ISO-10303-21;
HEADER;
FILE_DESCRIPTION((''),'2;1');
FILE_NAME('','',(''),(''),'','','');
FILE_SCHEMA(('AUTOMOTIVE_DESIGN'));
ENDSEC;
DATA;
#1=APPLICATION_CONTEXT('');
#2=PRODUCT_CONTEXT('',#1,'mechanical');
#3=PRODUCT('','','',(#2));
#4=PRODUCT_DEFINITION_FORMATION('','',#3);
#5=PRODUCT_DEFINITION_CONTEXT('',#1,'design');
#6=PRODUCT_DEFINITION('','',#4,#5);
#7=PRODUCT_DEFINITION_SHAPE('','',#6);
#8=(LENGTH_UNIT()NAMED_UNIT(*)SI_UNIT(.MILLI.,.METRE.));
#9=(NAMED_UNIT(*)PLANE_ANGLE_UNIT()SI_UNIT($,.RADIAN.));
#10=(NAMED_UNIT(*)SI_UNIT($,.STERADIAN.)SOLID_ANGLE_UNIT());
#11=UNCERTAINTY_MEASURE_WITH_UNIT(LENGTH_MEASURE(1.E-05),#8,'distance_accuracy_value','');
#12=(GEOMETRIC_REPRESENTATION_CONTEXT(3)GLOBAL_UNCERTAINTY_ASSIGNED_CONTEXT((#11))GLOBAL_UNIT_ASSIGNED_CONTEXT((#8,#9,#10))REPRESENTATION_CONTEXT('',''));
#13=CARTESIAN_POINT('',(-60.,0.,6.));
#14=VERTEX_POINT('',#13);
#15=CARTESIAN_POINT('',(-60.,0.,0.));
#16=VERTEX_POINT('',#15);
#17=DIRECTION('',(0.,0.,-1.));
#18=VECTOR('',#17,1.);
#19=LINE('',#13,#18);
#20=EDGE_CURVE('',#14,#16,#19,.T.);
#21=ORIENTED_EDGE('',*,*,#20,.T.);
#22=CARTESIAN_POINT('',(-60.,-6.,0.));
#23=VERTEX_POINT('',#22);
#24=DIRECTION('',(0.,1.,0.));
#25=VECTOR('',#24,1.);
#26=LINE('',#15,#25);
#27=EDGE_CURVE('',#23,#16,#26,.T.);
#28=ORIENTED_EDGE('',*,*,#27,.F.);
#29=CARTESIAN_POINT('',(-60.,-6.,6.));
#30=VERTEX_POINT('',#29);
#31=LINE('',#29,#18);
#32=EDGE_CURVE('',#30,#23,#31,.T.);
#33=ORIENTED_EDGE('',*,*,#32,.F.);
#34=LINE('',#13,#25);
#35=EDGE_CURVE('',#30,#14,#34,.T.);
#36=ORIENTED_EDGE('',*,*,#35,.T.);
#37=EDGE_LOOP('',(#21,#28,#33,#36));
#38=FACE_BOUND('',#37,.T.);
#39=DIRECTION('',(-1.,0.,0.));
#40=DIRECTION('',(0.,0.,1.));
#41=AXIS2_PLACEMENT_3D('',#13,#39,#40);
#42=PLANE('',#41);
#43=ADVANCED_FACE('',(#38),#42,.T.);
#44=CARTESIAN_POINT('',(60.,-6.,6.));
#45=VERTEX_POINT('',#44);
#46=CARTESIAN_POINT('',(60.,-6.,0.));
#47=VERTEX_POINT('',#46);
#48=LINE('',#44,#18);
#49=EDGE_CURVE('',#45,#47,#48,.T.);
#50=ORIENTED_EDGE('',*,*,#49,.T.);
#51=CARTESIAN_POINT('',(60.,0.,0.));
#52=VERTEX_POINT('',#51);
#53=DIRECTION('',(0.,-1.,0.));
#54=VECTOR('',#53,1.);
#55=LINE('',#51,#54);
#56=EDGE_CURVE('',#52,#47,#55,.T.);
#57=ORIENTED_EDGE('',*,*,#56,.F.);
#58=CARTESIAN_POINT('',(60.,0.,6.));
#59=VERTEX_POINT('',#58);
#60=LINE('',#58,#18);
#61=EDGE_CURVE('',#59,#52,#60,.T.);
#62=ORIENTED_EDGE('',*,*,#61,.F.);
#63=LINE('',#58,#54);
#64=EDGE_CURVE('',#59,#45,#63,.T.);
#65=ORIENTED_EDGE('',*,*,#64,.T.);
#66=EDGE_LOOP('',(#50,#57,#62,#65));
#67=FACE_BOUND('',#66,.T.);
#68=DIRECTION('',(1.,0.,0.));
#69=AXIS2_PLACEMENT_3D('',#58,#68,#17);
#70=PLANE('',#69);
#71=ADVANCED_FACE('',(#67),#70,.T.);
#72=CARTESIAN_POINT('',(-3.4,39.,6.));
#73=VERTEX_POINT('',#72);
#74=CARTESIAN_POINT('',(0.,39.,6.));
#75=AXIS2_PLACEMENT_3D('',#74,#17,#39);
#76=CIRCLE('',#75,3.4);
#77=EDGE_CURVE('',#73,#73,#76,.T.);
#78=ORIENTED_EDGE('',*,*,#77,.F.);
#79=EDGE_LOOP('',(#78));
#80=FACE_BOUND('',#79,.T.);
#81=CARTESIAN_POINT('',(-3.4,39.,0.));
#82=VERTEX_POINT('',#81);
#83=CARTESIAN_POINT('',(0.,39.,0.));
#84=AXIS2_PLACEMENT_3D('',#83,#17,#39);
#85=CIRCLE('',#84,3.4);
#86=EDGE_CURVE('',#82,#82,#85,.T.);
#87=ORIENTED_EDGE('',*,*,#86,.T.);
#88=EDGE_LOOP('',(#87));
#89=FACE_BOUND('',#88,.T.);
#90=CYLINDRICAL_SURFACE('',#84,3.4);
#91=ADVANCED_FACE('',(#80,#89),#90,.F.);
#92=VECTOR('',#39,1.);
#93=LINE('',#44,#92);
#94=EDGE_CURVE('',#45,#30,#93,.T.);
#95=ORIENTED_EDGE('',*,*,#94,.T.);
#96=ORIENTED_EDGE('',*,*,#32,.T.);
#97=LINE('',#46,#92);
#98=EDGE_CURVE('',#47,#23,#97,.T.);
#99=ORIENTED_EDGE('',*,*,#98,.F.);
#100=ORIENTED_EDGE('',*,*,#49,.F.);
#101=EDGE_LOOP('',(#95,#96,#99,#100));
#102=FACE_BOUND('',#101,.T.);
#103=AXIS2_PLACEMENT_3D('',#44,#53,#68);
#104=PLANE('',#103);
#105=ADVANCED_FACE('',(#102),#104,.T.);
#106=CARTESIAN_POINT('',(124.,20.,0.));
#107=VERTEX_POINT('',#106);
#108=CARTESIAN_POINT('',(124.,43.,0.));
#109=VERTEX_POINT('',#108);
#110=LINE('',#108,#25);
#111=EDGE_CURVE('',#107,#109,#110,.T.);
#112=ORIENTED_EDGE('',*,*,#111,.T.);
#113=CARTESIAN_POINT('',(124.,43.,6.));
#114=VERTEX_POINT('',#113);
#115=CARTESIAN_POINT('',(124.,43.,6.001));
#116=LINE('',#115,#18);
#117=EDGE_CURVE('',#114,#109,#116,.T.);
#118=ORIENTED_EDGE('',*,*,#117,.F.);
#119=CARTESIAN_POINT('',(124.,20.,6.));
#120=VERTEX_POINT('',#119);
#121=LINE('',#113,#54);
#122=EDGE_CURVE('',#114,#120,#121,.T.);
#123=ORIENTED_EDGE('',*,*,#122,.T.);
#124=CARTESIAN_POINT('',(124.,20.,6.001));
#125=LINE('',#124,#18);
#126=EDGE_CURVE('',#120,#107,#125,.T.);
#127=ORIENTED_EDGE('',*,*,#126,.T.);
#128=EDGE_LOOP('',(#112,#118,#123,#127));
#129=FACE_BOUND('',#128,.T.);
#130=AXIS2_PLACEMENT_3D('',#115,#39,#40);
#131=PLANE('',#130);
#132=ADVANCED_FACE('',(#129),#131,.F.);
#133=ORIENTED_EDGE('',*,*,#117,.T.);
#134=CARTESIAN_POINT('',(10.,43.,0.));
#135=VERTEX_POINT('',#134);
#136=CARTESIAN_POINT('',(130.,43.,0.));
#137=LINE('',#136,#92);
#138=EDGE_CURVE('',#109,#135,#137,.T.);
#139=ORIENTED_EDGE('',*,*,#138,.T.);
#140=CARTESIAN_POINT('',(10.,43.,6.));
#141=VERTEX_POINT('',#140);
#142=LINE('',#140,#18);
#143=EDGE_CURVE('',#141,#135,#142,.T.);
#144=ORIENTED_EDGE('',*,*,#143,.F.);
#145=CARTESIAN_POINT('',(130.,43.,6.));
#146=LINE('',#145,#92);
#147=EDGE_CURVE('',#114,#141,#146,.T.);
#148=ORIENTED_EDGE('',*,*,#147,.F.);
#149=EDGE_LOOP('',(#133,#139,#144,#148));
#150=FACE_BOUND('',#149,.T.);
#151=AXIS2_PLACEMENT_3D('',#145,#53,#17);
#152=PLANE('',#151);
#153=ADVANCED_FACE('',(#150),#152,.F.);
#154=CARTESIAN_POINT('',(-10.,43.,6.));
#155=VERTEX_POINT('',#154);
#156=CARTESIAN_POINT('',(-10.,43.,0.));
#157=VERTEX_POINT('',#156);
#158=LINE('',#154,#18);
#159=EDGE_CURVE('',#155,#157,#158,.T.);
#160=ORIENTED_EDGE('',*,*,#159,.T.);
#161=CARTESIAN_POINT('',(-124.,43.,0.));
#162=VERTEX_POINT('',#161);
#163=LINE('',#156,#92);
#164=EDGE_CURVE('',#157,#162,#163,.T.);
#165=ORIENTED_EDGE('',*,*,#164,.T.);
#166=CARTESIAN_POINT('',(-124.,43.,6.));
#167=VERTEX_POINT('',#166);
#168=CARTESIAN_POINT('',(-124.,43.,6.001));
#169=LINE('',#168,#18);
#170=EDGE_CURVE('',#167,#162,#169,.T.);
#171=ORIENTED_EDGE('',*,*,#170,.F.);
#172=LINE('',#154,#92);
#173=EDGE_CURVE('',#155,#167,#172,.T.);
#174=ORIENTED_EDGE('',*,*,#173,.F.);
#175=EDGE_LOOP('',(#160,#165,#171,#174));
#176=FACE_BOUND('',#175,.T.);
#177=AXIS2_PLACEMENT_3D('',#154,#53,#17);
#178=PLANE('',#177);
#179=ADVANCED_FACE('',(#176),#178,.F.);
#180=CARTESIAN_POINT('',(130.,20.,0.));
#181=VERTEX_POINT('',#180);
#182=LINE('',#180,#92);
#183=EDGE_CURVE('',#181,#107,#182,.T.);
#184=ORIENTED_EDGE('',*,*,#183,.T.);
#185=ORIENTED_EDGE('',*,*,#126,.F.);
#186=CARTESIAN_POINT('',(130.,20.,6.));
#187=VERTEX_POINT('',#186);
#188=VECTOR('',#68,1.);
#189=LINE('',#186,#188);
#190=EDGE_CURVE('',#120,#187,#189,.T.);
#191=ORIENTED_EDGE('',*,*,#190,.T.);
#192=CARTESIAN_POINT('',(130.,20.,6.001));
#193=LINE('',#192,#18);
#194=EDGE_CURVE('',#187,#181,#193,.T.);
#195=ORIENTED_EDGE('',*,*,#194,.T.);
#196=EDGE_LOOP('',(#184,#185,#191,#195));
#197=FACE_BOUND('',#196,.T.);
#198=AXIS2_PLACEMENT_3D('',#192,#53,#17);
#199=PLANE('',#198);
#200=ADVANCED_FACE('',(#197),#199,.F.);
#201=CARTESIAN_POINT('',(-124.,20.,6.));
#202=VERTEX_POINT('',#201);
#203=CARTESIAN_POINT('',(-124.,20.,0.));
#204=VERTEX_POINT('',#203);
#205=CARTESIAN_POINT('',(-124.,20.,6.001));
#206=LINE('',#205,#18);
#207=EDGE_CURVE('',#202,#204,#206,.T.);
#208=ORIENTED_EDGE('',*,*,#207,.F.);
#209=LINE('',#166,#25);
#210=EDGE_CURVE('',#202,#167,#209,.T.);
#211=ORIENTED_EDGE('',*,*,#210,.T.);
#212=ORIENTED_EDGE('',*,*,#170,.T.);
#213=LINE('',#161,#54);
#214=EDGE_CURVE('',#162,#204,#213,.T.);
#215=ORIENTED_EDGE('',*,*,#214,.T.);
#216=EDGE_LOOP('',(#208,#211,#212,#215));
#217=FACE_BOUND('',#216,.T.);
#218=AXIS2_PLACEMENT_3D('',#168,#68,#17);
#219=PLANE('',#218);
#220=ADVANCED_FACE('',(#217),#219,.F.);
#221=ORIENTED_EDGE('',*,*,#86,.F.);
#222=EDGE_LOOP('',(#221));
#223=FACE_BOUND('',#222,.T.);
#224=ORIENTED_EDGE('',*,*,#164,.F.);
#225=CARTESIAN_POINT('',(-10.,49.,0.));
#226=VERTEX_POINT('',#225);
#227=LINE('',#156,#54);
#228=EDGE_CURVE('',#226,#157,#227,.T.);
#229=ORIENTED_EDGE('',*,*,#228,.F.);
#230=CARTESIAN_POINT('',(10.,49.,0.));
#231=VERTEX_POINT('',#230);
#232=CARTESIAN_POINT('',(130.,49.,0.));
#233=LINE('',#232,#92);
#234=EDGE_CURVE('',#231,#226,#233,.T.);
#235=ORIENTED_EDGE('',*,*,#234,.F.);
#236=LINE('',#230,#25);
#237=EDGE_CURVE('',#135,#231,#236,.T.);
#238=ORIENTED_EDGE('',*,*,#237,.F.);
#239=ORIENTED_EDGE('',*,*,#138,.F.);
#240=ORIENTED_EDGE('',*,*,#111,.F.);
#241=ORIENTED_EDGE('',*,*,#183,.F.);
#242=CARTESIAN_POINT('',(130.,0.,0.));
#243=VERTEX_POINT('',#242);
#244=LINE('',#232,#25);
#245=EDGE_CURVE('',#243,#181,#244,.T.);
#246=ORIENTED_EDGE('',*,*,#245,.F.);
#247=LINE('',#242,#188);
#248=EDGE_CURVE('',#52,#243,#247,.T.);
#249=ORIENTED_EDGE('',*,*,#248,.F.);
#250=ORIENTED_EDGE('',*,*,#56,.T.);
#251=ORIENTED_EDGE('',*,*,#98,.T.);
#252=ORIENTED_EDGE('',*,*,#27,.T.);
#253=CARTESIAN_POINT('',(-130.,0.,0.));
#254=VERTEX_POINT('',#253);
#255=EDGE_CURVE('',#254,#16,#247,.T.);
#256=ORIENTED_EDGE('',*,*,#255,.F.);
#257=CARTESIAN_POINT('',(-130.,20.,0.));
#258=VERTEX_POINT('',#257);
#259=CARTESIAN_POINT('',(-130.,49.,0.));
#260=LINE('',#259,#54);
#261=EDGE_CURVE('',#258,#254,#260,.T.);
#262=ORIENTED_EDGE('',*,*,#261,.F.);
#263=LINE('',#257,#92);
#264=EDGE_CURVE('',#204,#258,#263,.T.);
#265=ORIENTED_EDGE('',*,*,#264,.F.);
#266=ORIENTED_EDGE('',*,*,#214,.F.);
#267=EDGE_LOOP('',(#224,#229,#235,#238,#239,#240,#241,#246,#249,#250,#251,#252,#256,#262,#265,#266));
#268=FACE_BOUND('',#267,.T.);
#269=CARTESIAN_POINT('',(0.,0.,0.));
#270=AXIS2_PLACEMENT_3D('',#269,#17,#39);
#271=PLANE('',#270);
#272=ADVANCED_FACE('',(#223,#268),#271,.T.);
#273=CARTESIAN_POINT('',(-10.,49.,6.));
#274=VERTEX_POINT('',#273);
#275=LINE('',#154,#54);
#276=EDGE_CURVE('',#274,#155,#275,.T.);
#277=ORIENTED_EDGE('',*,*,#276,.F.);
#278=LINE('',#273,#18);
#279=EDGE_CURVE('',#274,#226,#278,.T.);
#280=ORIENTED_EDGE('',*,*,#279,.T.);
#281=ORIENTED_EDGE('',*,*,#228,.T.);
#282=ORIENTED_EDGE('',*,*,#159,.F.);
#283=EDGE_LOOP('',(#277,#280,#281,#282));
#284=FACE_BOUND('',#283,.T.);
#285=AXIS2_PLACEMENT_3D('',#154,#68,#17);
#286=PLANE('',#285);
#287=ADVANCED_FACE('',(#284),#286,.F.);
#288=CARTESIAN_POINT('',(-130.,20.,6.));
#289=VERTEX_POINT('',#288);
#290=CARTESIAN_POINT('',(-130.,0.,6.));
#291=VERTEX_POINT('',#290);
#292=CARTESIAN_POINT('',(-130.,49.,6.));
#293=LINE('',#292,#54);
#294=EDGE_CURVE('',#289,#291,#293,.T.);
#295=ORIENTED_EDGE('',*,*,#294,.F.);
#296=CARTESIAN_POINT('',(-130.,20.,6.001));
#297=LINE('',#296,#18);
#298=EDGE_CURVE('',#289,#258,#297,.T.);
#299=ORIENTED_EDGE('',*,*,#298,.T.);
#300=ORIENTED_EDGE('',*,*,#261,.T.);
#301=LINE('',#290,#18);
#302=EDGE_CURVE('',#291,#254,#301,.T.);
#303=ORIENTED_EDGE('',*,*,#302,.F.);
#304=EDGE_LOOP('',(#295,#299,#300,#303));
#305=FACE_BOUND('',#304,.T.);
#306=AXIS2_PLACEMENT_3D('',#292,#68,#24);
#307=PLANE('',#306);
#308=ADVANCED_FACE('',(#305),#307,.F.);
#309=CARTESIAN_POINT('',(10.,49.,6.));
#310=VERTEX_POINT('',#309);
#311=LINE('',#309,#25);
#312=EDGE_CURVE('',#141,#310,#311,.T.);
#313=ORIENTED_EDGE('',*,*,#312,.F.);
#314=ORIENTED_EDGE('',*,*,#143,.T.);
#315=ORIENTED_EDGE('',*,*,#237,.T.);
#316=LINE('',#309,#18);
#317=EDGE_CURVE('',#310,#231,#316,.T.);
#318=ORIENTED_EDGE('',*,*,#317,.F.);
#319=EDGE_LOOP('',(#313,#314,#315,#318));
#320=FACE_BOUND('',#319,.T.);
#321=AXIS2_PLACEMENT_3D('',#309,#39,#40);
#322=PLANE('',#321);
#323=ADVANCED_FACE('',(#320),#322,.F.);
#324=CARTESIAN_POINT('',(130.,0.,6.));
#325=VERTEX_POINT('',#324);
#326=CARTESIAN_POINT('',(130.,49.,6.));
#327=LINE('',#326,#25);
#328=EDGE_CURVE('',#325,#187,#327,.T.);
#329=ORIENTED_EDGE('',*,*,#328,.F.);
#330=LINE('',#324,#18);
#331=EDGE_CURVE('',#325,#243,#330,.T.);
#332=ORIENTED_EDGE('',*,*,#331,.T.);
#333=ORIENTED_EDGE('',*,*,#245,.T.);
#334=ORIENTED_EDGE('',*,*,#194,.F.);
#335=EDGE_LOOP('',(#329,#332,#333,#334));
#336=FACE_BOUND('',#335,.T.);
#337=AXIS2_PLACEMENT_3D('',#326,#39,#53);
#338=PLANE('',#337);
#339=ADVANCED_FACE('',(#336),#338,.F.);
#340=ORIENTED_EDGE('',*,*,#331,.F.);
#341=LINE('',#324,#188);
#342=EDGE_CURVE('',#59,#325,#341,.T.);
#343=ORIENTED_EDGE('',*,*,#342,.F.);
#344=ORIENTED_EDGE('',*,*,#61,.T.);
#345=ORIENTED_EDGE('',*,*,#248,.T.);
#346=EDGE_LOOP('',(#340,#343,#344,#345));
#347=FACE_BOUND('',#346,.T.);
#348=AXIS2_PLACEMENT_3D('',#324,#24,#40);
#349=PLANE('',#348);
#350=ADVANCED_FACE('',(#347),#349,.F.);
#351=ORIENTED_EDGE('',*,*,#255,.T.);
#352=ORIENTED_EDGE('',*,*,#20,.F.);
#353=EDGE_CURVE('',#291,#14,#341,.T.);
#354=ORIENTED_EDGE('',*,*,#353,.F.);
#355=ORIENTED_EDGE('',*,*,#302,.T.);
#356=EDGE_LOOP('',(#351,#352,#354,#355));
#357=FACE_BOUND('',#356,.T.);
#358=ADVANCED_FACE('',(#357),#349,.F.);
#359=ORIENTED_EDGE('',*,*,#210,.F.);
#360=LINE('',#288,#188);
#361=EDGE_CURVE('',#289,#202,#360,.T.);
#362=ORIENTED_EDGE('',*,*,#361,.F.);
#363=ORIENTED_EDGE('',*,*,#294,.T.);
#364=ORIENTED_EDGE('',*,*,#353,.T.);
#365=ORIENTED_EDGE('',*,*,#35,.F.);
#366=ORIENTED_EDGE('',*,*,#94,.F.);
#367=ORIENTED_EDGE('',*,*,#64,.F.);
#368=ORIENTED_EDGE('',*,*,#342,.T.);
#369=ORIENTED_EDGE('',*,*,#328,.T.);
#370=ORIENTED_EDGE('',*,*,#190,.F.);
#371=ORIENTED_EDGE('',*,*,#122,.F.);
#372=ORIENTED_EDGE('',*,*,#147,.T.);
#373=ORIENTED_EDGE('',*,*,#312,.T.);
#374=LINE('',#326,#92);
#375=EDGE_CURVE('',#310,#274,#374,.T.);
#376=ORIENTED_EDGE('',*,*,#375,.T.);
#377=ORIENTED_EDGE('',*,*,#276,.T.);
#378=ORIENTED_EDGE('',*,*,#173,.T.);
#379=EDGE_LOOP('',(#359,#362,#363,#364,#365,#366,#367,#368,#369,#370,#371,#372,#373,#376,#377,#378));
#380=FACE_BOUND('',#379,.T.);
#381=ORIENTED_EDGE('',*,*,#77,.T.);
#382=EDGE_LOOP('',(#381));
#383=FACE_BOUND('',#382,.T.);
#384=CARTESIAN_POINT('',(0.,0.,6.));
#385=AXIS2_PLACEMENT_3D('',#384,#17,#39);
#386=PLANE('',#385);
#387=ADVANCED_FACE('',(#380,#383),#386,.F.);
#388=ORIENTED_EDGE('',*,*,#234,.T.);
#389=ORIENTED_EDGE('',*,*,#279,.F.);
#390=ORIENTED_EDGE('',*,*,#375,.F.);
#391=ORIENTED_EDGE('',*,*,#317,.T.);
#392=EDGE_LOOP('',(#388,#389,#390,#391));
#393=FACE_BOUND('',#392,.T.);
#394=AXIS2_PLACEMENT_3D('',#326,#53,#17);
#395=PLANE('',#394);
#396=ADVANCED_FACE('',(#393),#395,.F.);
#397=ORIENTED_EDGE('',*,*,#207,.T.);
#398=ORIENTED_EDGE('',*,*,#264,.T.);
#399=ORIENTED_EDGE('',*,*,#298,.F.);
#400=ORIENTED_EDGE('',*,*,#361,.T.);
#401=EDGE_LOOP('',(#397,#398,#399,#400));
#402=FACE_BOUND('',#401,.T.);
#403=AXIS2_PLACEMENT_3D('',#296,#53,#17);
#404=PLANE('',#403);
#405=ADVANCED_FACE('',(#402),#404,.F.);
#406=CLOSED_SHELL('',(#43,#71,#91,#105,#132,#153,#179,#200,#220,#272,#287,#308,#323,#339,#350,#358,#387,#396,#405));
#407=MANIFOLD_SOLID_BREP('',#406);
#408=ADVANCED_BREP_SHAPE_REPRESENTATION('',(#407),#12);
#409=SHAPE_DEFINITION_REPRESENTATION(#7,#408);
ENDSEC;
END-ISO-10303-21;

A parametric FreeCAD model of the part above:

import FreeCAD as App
import Part
import Sketcher
from FreeCAD import Vector


def add_polygon(sketch, points):
    """Adds a closed chain of lines whose ends are joined by coincident constraints."""
    first, n = sketch.GeometryCount, len(points)
    for a, b in zip(points, points[1:] + points[:1]):
        sketch.addGeometry(Part.LineSegment(App.Vector(*a, 0), App.Vector(*b, 0)), False)
    for i in range(n):
        sketch.addConstraint(Sketcher.Constraint("Coincident", first + i, 2, first + (i + 1) % n, 1))

doc = App.newDocument("Part")
body = doc.addObject("PartDesign::Body", "Body")

# Sketch on XY plane
sketch1 = body.newObject("Sketcher::SketchObject", "Sketch")
sketch1.AttachmentSupport = (doc.getObject("XY_Plane"), [""])
sketch1.MapMode = "FlatFace"
add_polygon(sketch1, [(-130, 49), (-130, 0), (130, 0), (130, 49)])  # lines 0-3
sketch1.addConstraint([
    Sketcher.Constraint("Vertical", 0),
    Sketcher.Constraint("Horizontal", 1),
    Sketcher.Constraint("Vertical", 2),
    Sketcher.Constraint("Horizontal", 3),
    Sketcher.Constraint("Symmetric", 0, 2, 1, 2, -1, 1),
    Sketcher.Constraint("DistanceX", 1, 1, 1, 2, 260.0),
    Sketcher.Constraint("DistanceY", 0, 2, 0, 1, 49.0),
])
pad1 = body.newObject("PartDesign::Pad", "Pad")
pad1.Profile = sketch1
pad1.Length = 6

# Sketch on XY plane
sketch2 = body.newObject("Sketcher::SketchObject", "Sketch001")
sketch2.AttachmentSupport = (doc.getObject("XY_Plane"), [""])
sketch2.MapMode = "FlatFace"
add_polygon(sketch2, [(130, 49), (130, 43), (10, 43), (10, 49)])  # lines 0-3
add_polygon(sketch2, [(-10, 49), (-10, 43), (-130, 43), (-130, 49)])  # lines 4-7
sketch2.addConstraint([
    Sketcher.Constraint("Vertical", 0),
    Sketcher.Constraint("Horizontal", 1),
    Sketcher.Constraint("Vertical", 2),
    Sketcher.Constraint("Horizontal", 3),
    Sketcher.Constraint("Vertical", 4),
    Sketcher.Constraint("Horizontal", 5),
    Sketcher.Constraint("Vertical", 6),
    Sketcher.Constraint("Horizontal", 7),
    Sketcher.Constraint("Symmetric", 1, 2, 4, 2, -2),
    Sketcher.Constraint("Symmetric", 3, 2, 6, 2, -2),
    Sketcher.Constraint("DistanceX", 1, 2, 1, 1, 120.0),
    Sketcher.Constraint("DistanceY", 0, 2, 0, 1, 6.0),
    Sketcher.Constraint("DistanceX", -1, 1, 0, 2, 130.0),
    Sketcher.Constraint("DistanceY", -1, 1, 0, 2, 43.0),
])
pocket1 = body.newObject("PartDesign::Pocket", "Pocket")
pocket1.Profile = sketch2
pocket1.Length = 6
pocket1.Reversed = True

# Sketch on XY plane
sketch3 = body.newObject("Sketcher::SketchObject", "Sketch002")
sketch3.AttachmentSupport = (doc.getObject("XY_Plane"), [""])
sketch3.MapMode = "FlatFace"
sketch3.addGeometry(Part.Circle(Vector(0, 39, 0), Vector(0, 0, 1), 3.4), False)
sketch3.addConstraint([
    Sketcher.Constraint("PointOnObject", 0, 3, -2),
    Sketcher.Constraint("Diameter", 0, 6.8),
    Sketcher.Constraint("DistanceY", -1, 1, 0, 3, 39.0),
])
doc.recompute()
hole = body.newObject("PartDesign::Hole", "Hole")
hole.Profile = sketch3
hole.ThreadType = "None"
hole.Diameter = 6.8
hole.DepthType = "ThroughAll"
hole.Reversed = True

# Sketch on XY plane
sketch4 = body.newObject("Sketcher::SketchObject", "Sketch003")
sketch4.AttachmentSupport = (doc.getObject("XY_Plane"), [""])
sketch4.MapMode = "FlatFace"
add_polygon(sketch4, [(130, 43), (130, 20), (124, 20), (124, 43)])  # lines 0-3
sketch4.addConstraint([
    Sketcher.Constraint("Vertical", 0),
    Sketcher.Constraint("Horizontal", 1),
    Sketcher.Constraint("Vertical", 2),
    Sketcher.Constraint("Horizontal", 3),
    Sketcher.Constraint("DistanceX", 1, 2, 1, 1, 6.0),
    Sketcher.Constraint("DistanceY", 0, 2, 0, 1, 23.0),
    Sketcher.Constraint("DistanceX", -1, 1, 0, 2, 130.0),
    Sketcher.Constraint("DistanceY", -1, 1, 0, 2, 20.0),
])
pocket2 = body.newObject("PartDesign::Pocket", "Pocket001")
pocket2.Profile = sketch4
pocket2.Type = "UpToFirst"
pocket2.Reversed = True

# Sketch on XY plane
sketch5 = body.newObject("Sketcher::SketchObject", "Sketch004")
sketch5.AttachmentSupport = (doc.getObject("XY_Plane"), [""])
sketch5.MapMode = "FlatFace"
add_polygon(sketch5, [(-124, 43), (-124, 20), (-130, 20), (-130, 43)])  # lines 0-3
sketch5.addConstraint([
    Sketcher.Constraint("Vertical", 0),
    Sketcher.Constraint("Horizontal", 1),
    Sketcher.Constraint("Vertical", 2),
    Sketcher.Constraint("Horizontal", 3),
    Sketcher.Constraint("DistanceX", 1, 2, 1, 1, 6.0),
    Sketcher.Constraint("DistanceY", 0, 2, 0, 1, 23.0),
    Sketcher.Constraint("DistanceX", 0, 2, -1, 1, 124.0),
    Sketcher.Constraint("DistanceY", -1, 1, 0, 2, 20.0),
])
pocket3 = body.newObject("PartDesign::Pocket", "Pocket002")
pocket3.Profile = sketch5
pocket3.Type = "UpToFirst"
pocket3.Reversed = True

# Sketch on XY plane
sketch6 = body.newObject("Sketcher::SketchObject", "Sketch005")
sketch6.AttachmentSupport = (doc.getObject("XY_Plane"), [""])
sketch6.MapMode = "FlatFace"
add_polygon(sketch6, [(60, 0), (60, -6), (-60, -6), (-60, 0)])  # lines 0-3
sketch6.addConstraint([
    Sketcher.Constraint("Vertical", 0),
    Sketcher.Constraint("Horizontal", 1),
    Sketcher.Constraint("Vertical", 2),
    Sketcher.Constraint("Horizontal", 3),
    Sketcher.Constraint("Symmetric", 2, 2, 3, 2, -1, 1),
    Sketcher.Constraint("DistanceX", 1, 2, 1, 1, 120.0),
    Sketcher.Constraint("DistanceY", 0, 2, 0, 1, 6.0),
])
pad2 = body.newObject("PartDesign::Pad", "Pad001")
pad2.Profile = sketch6
pad2.Length = 6

doc.recompute()
